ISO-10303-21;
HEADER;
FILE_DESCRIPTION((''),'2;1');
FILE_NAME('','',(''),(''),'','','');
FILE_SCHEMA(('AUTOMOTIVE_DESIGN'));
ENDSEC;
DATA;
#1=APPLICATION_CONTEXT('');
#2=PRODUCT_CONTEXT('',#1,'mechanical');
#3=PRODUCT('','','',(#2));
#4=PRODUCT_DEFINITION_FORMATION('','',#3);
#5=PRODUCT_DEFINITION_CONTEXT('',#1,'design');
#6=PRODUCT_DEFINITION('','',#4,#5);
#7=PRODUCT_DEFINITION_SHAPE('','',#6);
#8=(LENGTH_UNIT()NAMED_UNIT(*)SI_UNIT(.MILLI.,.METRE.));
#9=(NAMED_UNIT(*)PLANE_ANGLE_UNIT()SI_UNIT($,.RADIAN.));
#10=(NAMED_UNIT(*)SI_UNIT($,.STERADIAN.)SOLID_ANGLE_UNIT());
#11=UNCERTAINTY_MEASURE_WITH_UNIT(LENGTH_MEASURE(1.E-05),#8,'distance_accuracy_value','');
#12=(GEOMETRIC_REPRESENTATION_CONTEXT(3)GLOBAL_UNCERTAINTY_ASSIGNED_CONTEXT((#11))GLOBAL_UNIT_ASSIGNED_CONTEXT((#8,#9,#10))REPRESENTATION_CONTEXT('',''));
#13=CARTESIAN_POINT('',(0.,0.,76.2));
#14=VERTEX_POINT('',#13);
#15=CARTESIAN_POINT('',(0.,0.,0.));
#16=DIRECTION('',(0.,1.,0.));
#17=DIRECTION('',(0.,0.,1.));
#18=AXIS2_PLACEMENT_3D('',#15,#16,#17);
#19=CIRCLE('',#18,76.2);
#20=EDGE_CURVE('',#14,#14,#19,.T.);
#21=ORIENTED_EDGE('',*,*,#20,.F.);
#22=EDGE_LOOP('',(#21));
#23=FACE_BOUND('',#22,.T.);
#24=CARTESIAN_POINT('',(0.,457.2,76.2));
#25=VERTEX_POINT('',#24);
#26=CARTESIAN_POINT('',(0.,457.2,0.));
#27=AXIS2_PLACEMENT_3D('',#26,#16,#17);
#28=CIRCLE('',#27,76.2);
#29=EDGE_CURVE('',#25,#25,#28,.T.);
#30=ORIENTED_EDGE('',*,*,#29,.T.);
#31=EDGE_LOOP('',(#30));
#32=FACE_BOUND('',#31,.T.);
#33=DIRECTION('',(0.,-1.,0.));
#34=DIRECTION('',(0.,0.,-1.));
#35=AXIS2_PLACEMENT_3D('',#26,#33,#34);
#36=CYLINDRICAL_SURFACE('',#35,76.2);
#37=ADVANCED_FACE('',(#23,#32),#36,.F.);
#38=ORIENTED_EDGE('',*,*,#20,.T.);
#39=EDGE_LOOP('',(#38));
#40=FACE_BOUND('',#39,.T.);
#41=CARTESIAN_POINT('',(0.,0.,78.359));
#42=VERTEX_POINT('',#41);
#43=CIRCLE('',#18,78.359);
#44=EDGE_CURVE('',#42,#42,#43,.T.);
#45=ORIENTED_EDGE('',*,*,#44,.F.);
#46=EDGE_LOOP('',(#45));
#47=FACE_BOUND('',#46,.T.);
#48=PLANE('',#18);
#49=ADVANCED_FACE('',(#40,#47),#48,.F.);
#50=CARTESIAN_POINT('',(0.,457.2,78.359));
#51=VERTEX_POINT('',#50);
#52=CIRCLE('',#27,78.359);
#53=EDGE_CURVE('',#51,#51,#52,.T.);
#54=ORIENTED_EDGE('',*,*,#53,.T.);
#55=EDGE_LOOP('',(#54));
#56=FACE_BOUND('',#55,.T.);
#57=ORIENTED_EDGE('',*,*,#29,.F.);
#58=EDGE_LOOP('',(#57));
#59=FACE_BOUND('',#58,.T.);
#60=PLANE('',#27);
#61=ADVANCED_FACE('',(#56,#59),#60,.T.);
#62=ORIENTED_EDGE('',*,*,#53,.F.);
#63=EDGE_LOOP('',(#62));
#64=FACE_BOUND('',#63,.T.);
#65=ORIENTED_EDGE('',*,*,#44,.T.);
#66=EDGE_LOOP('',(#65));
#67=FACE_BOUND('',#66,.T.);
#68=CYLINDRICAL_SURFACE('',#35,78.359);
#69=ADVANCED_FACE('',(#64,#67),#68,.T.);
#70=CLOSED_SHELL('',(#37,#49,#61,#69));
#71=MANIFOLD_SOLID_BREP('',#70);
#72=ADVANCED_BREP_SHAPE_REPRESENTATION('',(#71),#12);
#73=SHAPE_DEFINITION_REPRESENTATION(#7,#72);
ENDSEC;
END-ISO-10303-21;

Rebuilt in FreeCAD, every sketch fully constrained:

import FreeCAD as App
import Part
import Sketcher
Q = App.Units.Quantity

doc = App.newDocument("Part")
params = doc.addObject("Spreadsheet::Sheet", "Params")
for row, (alias, value) in enumerate([
    ("sketch1_diameter", "6 in"),
    ("sketch1_diameter2", "6.17 in"),
    ("pad1_length", "18 in"),
], start=1):
    params.set(f"A{row}", alias)
    params.set(f"B{row}", "=" + value)
    params.setAlias(f"B{row}", alias)

body = doc.addObject("PartDesign::Body", "Body")

sketch1 = doc.addObject("Sketcher::SketchObject", "Sketch")
body.addObject(sketch1)
sketch1.AttachmentSupport = (doc.XZ_Plane, [""])
sketch1.MapMode = "FlatFace"
sketch1.addGeometry(Part.Circle(App.Vector(0, 0, 0), App.Vector(0, 0, 1), 78.359), False)
sketch1.addGeometry(Part.Circle(App.Vector(0, 0, 0), App.Vector(0, 0, 1), 76.2), False)
sketch1.addConstraint(Sketcher.Constraint("Coincident", 0, 3, -1, 1))
sketch1.addConstraint(Sketcher.Constraint("Coincident", 1, 3, -1, 1))
sketch1.addConstraint(Sketcher.Constraint("Diameter", 1, Q("6 in")))
sketch1.addConstraint(Sketcher.Constraint("Diameter", 0, Q("6.17 in")))
sketch1.setExpression("Constraints[2]", "Params.sketch1_diameter")
sketch1.setExpression("Constraints[3]", "Params.sketch1_diameter2")
pad1 = doc.addObject("PartDesign::Pad", "Pad")
body.addObject(pad1)
pad1.Profile = sketch1
pad1.setExpression("Length", "Params.pad1_length")
pad1.Reversed = True

doc.recompute()
